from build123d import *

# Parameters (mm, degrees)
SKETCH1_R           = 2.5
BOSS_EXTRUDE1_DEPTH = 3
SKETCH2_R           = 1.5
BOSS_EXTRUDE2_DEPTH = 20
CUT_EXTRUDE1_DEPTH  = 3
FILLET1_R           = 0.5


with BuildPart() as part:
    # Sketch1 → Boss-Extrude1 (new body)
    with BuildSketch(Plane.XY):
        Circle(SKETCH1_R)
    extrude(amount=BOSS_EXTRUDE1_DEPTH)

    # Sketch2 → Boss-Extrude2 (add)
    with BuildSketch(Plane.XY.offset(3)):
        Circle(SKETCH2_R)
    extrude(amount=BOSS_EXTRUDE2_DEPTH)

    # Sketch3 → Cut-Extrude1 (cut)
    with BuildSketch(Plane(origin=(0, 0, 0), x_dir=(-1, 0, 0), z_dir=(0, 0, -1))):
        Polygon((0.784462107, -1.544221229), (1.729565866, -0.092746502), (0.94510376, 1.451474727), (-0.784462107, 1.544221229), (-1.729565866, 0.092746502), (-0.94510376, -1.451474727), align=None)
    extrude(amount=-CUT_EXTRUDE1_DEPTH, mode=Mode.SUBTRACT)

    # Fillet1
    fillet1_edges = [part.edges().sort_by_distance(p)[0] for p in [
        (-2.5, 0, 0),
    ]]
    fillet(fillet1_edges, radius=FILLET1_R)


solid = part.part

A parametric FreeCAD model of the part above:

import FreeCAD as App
import Part
import Sketcher

V = App.Vector


def edges_at(feature, points):
    """Names of the edges that pass closest to the given points."""
    edges = feature.Shape.Edges
    near = lambda p: min(range(len(edges)), key=lambda i: edges[i].distToShape(Part.Vertex(*p))[0])
    return sorted({f"Edge{near(p) + 1}" for p in points})

doc = App.newDocument("Part")
body = doc.addObject("PartDesign::Body", "Body")
body.AllowCompound = True

# Sketch on XY plane
sketch1 = body.newObject("Sketcher::SketchObject", "Sketch")
sketch1.AttachmentSupport = (doc.getObject("XY_Plane"), [""])
sketch1.MapMode = "FlatFace"
sketch1.addGeometry(Part.Circle(V(0, 0, 0), V(0, 0, 1), 2.5), False)
sketch1.addConstraint([
    Sketcher.Constraint("Coincident", 0, 3, -1, 1),
    Sketcher.Constraint("Diameter", 0, 5.0),
])
pad1 = body.newObject("PartDesign::Pad", "Pad")
pad1.Profile = sketch1
pad1.Length = 3

# Sketch on XY plane
sketch2 = body.newObject("Sketcher::SketchObject", "Sketch001")
sketch2.AttachmentSupport = (doc.getObject("XY_Plane"), [""])
sketch2.MapMode = "FlatFace"
sketch2.AttachmentOffset = App.Placement(V(0, 0, 3), App.Rotation())
sketch2.addGeometry(Part.Circle(V(0, 0, 0), V(0, 0, 1), 1.5), False)
sketch2.addConstraint([
    Sketcher.Constraint("Coincident", 0, 3, -1, 1),
    Sketcher.Constraint("Diameter", 0, 3.0),
])
pad2 = body.newObject("PartDesign::Pad", "Pad001")
pad2.Profile = sketch2
pad2.Length = 20

# Sketch on XY plane
sketch3 = body.newObject("Sketcher::SketchObject", "Sketch002")
sketch3.AttachmentSupport = (doc.getObject("XY_Plane"), [""])
sketch3.MapMode = "FlatFace"
sketch3.addGeometry([
    Part.LineSegment(V(-0.784462, -1.544221, 0), V(-1.729566, -0.092747, 0)),  # 0
    Part.LineSegment(V(-1.729566, -0.092747, 0), V(-0.945104, 1.451475, 0)),  # 1
    Part.LineSegment(V(-0.945104, 1.451475, 0), V(0.784462, 1.544221, 0)),  # 2
    Part.LineSegment(V(0.784462, 1.544221, 0), V(1.729566, 0.092747, 0)),  # 3
    Part.LineSegment(V(1.729566, 0.092747, 0), V(0.945104, -1.451475, 0)),  # 4
    Part.LineSegment(V(0.945104, -1.451475, 0), V(-0.784462, -1.544221, 0)),  # 5
], False)
sketch3.addConstraint([
    Sketcher.Constraint("Coincident", 0, 2, 1, 1),
    Sketcher.Constraint("Coincident", 1, 2, 2, 1),
    Sketcher.Constraint("Coincident", 2, 2, 3, 1),
    Sketcher.Constraint("Coincident", 3, 2, 4, 1),
    Sketcher.Constraint("Coincident", 4, 2, 5, 1),
    Sketcher.Constraint("Coincident", 5, 2, 0, 1),
    Sketcher.Constraint("Symmetric", 0, 2, 3, 2, -1, 1),
    Sketcher.Constraint("Symmetric", 1, 2, 4, 2, -1, 1),
    Sketcher.Constraint("Symmetric", 2, 2, 5, 2, -1, 1),
    Sketcher.Constraint("Equal", 0, 1),
    Sketcher.Constraint("Equal", 1, 2),
    Sketcher.Constraint("Distance", 0, 1.732051),
    Sketcher.Constraint("DistanceY", -1, 1, 2, 2, 1.544221),
    Sketcher.Constraint("DistanceY", 0, 2, 1, 2, 1.544221),
    Sketcher.Constraint("DistanceX", 1, 2, 3, 2, 2.67467),
])
pocket1 = body.newObject("PartDesign::Pocket", "Pocket")
pocket1.Profile = sketch3
pocket1.Length = 3
pocket1.Reversed = True
doc.recompute()

fillet = body.newObject("PartDesign::Fillet", "Fillet")
fillet.Base = (pocket1, edges_at(pocket1, [(-2.5, 0, 0)]))
fillet.Radius = 0.5

doc.recompute()
